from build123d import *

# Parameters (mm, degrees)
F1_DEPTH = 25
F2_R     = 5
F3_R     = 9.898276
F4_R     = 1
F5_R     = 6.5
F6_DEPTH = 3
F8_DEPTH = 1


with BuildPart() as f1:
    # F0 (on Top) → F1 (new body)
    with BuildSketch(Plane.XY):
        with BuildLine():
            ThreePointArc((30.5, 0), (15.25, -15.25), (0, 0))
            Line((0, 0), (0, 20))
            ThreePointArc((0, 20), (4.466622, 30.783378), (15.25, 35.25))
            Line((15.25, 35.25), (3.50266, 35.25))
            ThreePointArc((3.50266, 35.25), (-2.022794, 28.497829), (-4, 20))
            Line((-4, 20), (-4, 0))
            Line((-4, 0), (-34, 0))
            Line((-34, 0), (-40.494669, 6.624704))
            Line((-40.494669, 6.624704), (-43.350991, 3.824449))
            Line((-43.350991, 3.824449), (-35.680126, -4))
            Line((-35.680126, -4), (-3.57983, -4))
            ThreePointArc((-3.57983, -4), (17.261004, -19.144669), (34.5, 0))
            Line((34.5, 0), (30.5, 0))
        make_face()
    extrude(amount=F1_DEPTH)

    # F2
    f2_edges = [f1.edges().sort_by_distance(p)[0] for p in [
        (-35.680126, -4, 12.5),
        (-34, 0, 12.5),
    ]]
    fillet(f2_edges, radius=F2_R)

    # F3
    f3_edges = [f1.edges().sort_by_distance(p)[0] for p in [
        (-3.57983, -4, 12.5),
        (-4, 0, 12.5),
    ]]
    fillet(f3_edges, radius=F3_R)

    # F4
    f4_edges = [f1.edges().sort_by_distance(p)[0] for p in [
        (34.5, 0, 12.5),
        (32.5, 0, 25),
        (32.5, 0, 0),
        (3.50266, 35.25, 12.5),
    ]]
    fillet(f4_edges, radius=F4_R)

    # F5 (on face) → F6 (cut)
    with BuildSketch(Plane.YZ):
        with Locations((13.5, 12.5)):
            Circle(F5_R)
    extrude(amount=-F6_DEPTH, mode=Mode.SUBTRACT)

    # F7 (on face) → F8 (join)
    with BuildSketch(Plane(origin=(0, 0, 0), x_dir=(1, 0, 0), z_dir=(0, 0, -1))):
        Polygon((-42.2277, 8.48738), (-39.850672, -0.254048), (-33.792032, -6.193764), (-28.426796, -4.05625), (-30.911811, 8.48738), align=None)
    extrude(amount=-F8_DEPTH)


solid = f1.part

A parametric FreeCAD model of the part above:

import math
import FreeCAD as App
import Part
import Sketcher
from FreeCAD import Vector


def edges_at(feature, points):
    """Names of the edges that pass closest to the given points."""
    edges = feature.Shape.Edges
    near = lambda p: min(range(len(edges)), key=lambda i: edges[i].distToShape(Part.Vertex(*p))[0])
    return sorted({f"Edge{near(p) + 1}" for p in points})


def add_polygon(sketch, points):
    """Adds a closed chain of lines whose ends are joined by coincident constraints."""
    first, n = sketch.GeometryCount, len(points)
    for a, b in zip(points, points[1:] + points[:1]):
        sketch.addGeometry(Part.LineSegment(App.Vector(*a, 0), App.Vector(*b, 0)), False)
    for i in range(n):
        sketch.addConstraint(Sketcher.Constraint("Coincident", first + i, 2, first + (i + 1) % n, 1))

doc = App.newDocument("Part")
body = doc.addObject("PartDesign::Body", "Body")

sketch1 = body.newObject("Sketcher::SketchObject", "Sketch")
sketch1.AttachmentSupport = (doc.getObject("XY_Plane"), [""])
sketch1.MapMode = "FlatFace"
sketch1.addGeometry([
    Part.ArcOfCircle(Part.Circle(Vector(15.25, 0, 0), Vector(0, 0, 1), 15.25), math.radians(180), math.radians(360)),
    Part.LineSegment(Vector(0, 0, 0), Vector(0, 20, 0)),
    Part.ArcOfCircle(Part.Circle(Vector(15.250001, 19.999999, 0), Vector(0, 0, 1), 15.250001), math.radians(90.000005), math.radians(179.999995)),
    Part.LineSegment(Vector(15.25, 35.25, 0), Vector(3.50266, 35.25, 0)),
    Part.ArcOfCircle(Part.Circle(Vector(15.249997, 20.000001, 0), Vector(0, 0, 1), 19.249997), math.radians(127.607681), math.radians(180.000004)),
    Part.LineSegment(Vector(-4, 20, 0), Vector(-4, 0, 0)),
    Part.LineSegment(Vector(-4, 0, 0), Vector(-34, 0, 0)),
    Part.LineSegment(Vector(-34, 0, 0), Vector(-40.494669, 6.624704, 0)),
    Part.LineSegment(Vector(-40.494669, 6.624704, 0), Vector(-43.350991, 3.824449, 0)),
    Part.LineSegment(Vector(-43.350991, 3.824449, 0), Vector(-35.680126, -4, 0)),
    Part.LineSegment(Vector(-35.680126, -4, 0), Vector(-3.57983, -4, 0)),
    Part.ArcOfCircle(Part.Circle(Vector(15.25, 0, 0), Vector(0, 0, 1), 19.25), math.radians(-168.006998), math.radians(-0.000001)),
    Part.LineSegment(Vector(34.5, 0, 0), Vector(30.5, 0, 0)),
], False)
sketch1.addConstraint([
    Sketcher.Constraint("Tangent", 0, 1, 1, 1),
    Sketcher.Constraint("Tangent", 1, 2, 2, 2),
    Sketcher.Constraint("Tangent", 2, 1, 3, 1),
    Sketcher.Constraint("Coincident", 3, 2, 4, 1),
    Sketcher.Constraint("Tangent", 4, 2, 5, 1),
    Sketcher.Constraint("Coincident", 5, 2, 6, 1),
    Sketcher.Constraint("Coincident", 6, 2, 7, 1),
    Sketcher.Constraint("Coincident", 7, 2, 8, 1),
    Sketcher.Constraint("Coincident", 8, 2, 9, 1),
    Sketcher.Constraint("Coincident", 9, 2, 10, 1),
    Sketcher.Constraint("Coincident", 10, 2, 11, 1),
    Sketcher.Constraint("Coincident", 11, 2, 12, 1),
    Sketcher.Constraint("Coincident", 12, 2, 0, 2),
    Sketcher.Constraint("Vertical", 1),
    Sketcher.Constraint("Horizontal", 3),
    Sketcher.Constraint("Vertical", 5),
    Sketcher.Constraint("Horizontal", 6),
    Sketcher.Constraint("Horizontal", 10),
    Sketcher.Constraint("Horizontal", 12),
    Sketcher.Constraint("Coincident", 0, 1, -1, 1),
    Sketcher.Constraint("Coincident", 4, 3, 2, 3),
    Sketcher.Constraint("Coincident", 11, 3, 0, 3),
    Sketcher.Constraint("Equal", 0, 2),
    Sketcher.Constraint("PointOnObject", 5, 2, -1),
    Sketcher.Constraint("PointOnObject", 11, 2, -1),
    Sketcher.Constraint("Perpendicular", 7, 8),
    Sketcher.Constraint("Perpendicular", 8, 9),
    Sketcher.Constraint("DistanceX", 6, 2, 6, 1, 30.0),
    Sketcher.Constraint("DistanceX", 12, 2, 12, 1, 4.0),
    Sketcher.Constraint("DistanceY", 1, 1, 1, 2, 20.0),
    Sketcher.Constraint("Radius", 0, 15.25),
    Sketcher.Constraint("Distance", 8, 4.0),
    Sketcher.Constraint("DistanceX", 4, 2, -1, 1, 4.0),
    Sketcher.Constraint("DistanceY", 9, 2, -1, 1, 4.0),
    Sketcher.Constraint("Distance", 9, 10.95738),
    Sketcher.Constraint("DistanceX", 10, 1, 10, 2, 32.100296),
])
pad1 = body.newObject("PartDesign::Pad", "Pad")
pad1.Profile = sketch1
pad1.Length = 25
doc.recompute()

fillet = body.newObject("PartDesign::Fillet", "Fillet")
fillet.Base = (pad1, edges_at(pad1, [(-35.68, -4, 12.5), (-34, 0, 12.5)]))
fillet.Radius = 5
doc.recompute()

fillet2 = body.newObject("PartDesign::Fillet", "Fillet001")
fillet2.Base = (fillet, edges_at(fillet, [(-3.58, -4, 12.5), (-4, 0, 12.5)]))
fillet2.Radius = 9.898276
doc.recompute()

fillet3 = body.newObject("PartDesign::Fillet", "Fillet002")
fillet3.Base = (fillet2, edges_at(fillet2, [
    (34.5, 0, 12.5),
    (32.5, 0, 25),
    (32.5, 0, 0),
    (3.503, 35.25, 12.5),
]))
fillet3.Radius = 1

sketch2 = body.newObject("Sketcher::SketchObject", "Sketch001")
sketch2.AttachmentSupport = (doc.getObject("YZ_Plane"), [""])
sketch2.MapMode = "FlatFace"
sketch2.addGeometry(Part.Circle(Vector(13.5, 12.5, 0), Vector(0, 0, 1), 6.5), False)
sketch2.addConstraint([
    Sketcher.Constraint("Diameter", 0, 13.0),
    Sketcher.Constraint("DistanceX", -1, 1, 0, 3, 13.5),
    Sketcher.Constraint("DistanceY", -1, 1, 0, 3, 12.5),
])
pocket1 = body.newObject("PartDesign::Pocket", "Pocket")
pocket1.Profile = sketch2
pocket1.Length = 3

sketch3 = body.newObject("Sketcher::SketchObject", "Sketch002")
sketch3.AttachmentSupport = (doc.getObject("XY_Plane"), [""])
sketch3.MapMode = "FlatFace"
add_polygon(sketch3, [(-42.2277, -8.48738), (-39.850672, 0.254048), (-33.792032, 6.193764), (-28.426796, 4.05625), (-30.911811, -8.48738)])
sketch3.addConstraint([
    Sketcher.Constraint("Horizontal", 4),
    Sketcher.Constraint("DistanceX", 4, 2, 4, 1, 11.315889),
    Sketcher.Constraint("DistanceX", 4, 2, -1, 1, 42.2277),
    Sketcher.Constraint("DistanceY", -1, 1, 2, 2, 4.05625),
    Sketcher.Constraint("DistanceY", 3, 2, -1, 1, 8.48738),
    Sketcher.Constraint("DistanceX", 0, 2, 1, 2, 6.05864),
    Sketcher.Constraint("DistanceX", 0, 2, 3, 2, 8.938861),
    Sketcher.Constraint("Distance", 0, 9.058853),
    Sketcher.Constraint("Distance", 1, 8.484536),
    Sketcher.Constraint("Distance", 2, 5.775355),
])
pad2 = body.newObject("PartDesign::Pad", "Pad001")
pad2.Profile = sketch3
pad2.Length = 1

doc.recompute()
